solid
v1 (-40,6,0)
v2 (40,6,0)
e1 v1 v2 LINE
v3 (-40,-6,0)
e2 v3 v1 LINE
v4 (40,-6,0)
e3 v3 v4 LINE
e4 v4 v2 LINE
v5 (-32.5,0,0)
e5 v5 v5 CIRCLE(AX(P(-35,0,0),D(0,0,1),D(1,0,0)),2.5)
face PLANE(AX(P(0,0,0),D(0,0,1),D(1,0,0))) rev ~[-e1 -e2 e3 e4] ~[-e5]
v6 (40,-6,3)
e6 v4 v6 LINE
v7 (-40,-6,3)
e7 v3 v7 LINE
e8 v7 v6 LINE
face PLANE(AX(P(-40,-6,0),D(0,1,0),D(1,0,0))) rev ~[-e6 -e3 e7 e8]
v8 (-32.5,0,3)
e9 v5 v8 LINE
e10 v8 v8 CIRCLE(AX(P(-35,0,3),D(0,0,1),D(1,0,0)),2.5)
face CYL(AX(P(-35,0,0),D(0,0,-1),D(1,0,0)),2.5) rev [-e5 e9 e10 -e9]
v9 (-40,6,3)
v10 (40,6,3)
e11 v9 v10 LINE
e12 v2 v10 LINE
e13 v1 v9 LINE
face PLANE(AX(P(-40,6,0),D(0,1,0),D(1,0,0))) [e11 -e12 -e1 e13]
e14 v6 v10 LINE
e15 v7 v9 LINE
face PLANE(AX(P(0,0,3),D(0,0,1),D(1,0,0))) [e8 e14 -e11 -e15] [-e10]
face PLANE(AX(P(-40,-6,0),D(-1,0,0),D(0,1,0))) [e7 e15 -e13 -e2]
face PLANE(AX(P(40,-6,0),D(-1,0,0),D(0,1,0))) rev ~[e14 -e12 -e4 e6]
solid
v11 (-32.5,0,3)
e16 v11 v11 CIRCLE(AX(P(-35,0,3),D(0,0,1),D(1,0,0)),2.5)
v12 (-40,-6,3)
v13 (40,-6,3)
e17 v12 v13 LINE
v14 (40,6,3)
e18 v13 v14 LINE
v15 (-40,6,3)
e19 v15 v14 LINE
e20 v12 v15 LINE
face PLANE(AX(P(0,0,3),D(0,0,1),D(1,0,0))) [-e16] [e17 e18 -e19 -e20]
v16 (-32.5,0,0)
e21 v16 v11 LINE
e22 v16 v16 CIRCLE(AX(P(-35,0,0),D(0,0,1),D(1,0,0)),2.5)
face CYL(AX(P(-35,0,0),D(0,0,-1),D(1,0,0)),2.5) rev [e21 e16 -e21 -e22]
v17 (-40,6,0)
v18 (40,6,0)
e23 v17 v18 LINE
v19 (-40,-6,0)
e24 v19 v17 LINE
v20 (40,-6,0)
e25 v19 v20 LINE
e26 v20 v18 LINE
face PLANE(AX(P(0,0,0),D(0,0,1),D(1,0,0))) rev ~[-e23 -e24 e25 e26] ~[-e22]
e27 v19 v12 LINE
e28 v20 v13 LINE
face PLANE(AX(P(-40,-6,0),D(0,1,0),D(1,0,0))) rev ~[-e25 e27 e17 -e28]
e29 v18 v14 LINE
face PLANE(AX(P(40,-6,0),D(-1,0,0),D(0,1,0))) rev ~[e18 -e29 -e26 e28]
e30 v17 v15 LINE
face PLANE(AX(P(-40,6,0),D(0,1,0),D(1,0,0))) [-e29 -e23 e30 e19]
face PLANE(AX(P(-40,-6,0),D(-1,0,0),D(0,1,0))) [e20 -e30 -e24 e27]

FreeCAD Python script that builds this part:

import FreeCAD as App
import Part
import Sketcher


def add_polygon(sketch, points):
    """Adds a closed chain of lines whose ends are joined by coincident constraints."""
    first, n = sketch.GeometryCount, len(points)
    for a, b in zip(points, points[1:] + points[:1]):
        sketch.addGeometry(Part.LineSegment(App.Vector(*a, 0), App.Vector(*b, 0)), False)
    for i in range(n):
        sketch.addConstraint(Sketcher.Constraint("Coincident", first + i, 2, first + (i + 1) % n, 1))

doc = App.newDocument("Part")
params = doc.addObject("Spreadsheet::Sheet", "Params")
for row, (alias, value) in enumerate([
    ("sketch1_diameter", "5 mm"),
    ("sketch1_width", "80 mm"),
    ("sketch1_height", "12 mm"),
    ("pad1_length", "3 mm"),
    ("sketch2_diameter", "5 mm"),
    ("sketch2_width", "80 mm"),
    ("sketch2_height", "12 mm"),
    ("pad2_length", "3 mm"),
], start=1):
    params.set(f"A{row}", alias)
    params.set(f"B{row}", "=" + value)
    params.setAlias(f"B{row}", alias)

body = doc.addObject("PartDesign::Body", "Body")

# Sketch on XY plane
sketch1 = doc.addObject("Sketcher::SketchObject", "Sketch")
body.addObject(sketch1)
sketch1.AttachmentSupport = (doc.XY_Plane, [""])
sketch1.MapMode = "FlatFace"
add_polygon(sketch1, [(-40, 6), (-40, -6), (40, -6), (40, 6)])  # lines 0-3
sketch1.addGeometry(Part.Circle(App.Vector(-35, 0, 0), App.Vector(0, 0, 1), 2.5), False)  # 4
sketch1.addConstraint(Sketcher.Constraint("Vertical", 0))
sketch1.addConstraint(Sketcher.Constraint("Horizontal", 1))
sketch1.addConstraint(Sketcher.Constraint("Vertical", 2))
sketch1.addConstraint(Sketcher.Constraint("Horizontal", 3))
sketch1.addConstraint(Sketcher.Constraint("Symmetric", 0, 2, 2, 2, -1, 1))
sketch1.addConstraint(Sketcher.Constraint("PointOnObject", 4, 3, -1))
sketch1.addConstraint(Sketcher.Constraint("Diameter", 4, 5.0))
sketch1.addConstraint(Sketcher.Constraint("DistanceX", 1, 1, 1, 2, 80.0))
sketch1.addConstraint(Sketcher.Constraint("DistanceY", 0, 2, 0, 1, 12.0))
sketch1.addConstraint(Sketcher.Constraint("DistanceX", 4, 3, -1, 1, 35.0))
sketch1.setExpression("Constraints[10]", "Params.sketch1_diameter")
sketch1.setExpression("Constraints[11]", "Params.sketch1_width")
sketch1.setExpression("Constraints[12]", "Params.sketch1_height")
pad1 = doc.addObject("PartDesign::Pad", "Pad")
body.addObject(pad1)
pad1.Profile = sketch1
pad1.setExpression("Length", "Params.pad1_length")
body2 = doc.addObject("PartDesign::Body", "Body001")

# Sketch on XY plane
sketch2 = doc.addObject("Sketcher::SketchObject", "Sketch001")
body2.addObject(sketch2)
sketch2.AttachmentSupport = (doc.getObject("XY_Plane001"), [""])
sketch2.MapMode = "FlatFace"
add_polygon(sketch2, [(-40, 6), (-40, -6), (40, -6), (40, 6)])  # lines 0-3
sketch2.addGeometry(Part.Circle(App.Vector(-35, 0, 0), App.Vector(0, 0, 1), 2.5), False)  # 4
sketch2.addConstraint(Sketcher.Constraint("Vertical", 0))
sketch2.addConstraint(Sketcher.Constraint("Horizontal", 1))
sketch2.addConstraint(Sketcher.Constraint("Vertical", 2))
sketch2.addConstraint(Sketcher.Constraint("Horizontal", 3))
sketch2.addConstraint(Sketcher.Constraint("Symmetric", 0, 2, 2, 2, -1, 1))
sketch2.addConstraint(Sketcher.Constraint("PointOnObject", 4, 3, -1))
sketch2.addConstraint(Sketcher.Constraint("Diameter", 4, 5.0))
sketch2.addConstraint(Sketcher.Constraint("DistanceX", 1, 1, 1, 2, 80.0))
sketch2.addConstraint(Sketcher.Constraint("DistanceY", 0, 2, 0, 1, 12.0))
sketch2.addConstraint(Sketcher.Constraint("DistanceX", 4, 3, -1, 1, 35.0))
sketch2.setExpression("Constraints[10]", "Params.sketch2_diameter")
sketch2.setExpression("Constraints[11]", "Params.sketch2_width")
sketch2.setExpression("Constraints[12]", "Params.sketch2_height")
pad2 = doc.addObject("PartDesign::Pad", "Pad001")
body2.addObject(pad2)
pad2.Profile = sketch2
pad2.setExpression("Length", "Params.pad2_length")

doc.recompute()
